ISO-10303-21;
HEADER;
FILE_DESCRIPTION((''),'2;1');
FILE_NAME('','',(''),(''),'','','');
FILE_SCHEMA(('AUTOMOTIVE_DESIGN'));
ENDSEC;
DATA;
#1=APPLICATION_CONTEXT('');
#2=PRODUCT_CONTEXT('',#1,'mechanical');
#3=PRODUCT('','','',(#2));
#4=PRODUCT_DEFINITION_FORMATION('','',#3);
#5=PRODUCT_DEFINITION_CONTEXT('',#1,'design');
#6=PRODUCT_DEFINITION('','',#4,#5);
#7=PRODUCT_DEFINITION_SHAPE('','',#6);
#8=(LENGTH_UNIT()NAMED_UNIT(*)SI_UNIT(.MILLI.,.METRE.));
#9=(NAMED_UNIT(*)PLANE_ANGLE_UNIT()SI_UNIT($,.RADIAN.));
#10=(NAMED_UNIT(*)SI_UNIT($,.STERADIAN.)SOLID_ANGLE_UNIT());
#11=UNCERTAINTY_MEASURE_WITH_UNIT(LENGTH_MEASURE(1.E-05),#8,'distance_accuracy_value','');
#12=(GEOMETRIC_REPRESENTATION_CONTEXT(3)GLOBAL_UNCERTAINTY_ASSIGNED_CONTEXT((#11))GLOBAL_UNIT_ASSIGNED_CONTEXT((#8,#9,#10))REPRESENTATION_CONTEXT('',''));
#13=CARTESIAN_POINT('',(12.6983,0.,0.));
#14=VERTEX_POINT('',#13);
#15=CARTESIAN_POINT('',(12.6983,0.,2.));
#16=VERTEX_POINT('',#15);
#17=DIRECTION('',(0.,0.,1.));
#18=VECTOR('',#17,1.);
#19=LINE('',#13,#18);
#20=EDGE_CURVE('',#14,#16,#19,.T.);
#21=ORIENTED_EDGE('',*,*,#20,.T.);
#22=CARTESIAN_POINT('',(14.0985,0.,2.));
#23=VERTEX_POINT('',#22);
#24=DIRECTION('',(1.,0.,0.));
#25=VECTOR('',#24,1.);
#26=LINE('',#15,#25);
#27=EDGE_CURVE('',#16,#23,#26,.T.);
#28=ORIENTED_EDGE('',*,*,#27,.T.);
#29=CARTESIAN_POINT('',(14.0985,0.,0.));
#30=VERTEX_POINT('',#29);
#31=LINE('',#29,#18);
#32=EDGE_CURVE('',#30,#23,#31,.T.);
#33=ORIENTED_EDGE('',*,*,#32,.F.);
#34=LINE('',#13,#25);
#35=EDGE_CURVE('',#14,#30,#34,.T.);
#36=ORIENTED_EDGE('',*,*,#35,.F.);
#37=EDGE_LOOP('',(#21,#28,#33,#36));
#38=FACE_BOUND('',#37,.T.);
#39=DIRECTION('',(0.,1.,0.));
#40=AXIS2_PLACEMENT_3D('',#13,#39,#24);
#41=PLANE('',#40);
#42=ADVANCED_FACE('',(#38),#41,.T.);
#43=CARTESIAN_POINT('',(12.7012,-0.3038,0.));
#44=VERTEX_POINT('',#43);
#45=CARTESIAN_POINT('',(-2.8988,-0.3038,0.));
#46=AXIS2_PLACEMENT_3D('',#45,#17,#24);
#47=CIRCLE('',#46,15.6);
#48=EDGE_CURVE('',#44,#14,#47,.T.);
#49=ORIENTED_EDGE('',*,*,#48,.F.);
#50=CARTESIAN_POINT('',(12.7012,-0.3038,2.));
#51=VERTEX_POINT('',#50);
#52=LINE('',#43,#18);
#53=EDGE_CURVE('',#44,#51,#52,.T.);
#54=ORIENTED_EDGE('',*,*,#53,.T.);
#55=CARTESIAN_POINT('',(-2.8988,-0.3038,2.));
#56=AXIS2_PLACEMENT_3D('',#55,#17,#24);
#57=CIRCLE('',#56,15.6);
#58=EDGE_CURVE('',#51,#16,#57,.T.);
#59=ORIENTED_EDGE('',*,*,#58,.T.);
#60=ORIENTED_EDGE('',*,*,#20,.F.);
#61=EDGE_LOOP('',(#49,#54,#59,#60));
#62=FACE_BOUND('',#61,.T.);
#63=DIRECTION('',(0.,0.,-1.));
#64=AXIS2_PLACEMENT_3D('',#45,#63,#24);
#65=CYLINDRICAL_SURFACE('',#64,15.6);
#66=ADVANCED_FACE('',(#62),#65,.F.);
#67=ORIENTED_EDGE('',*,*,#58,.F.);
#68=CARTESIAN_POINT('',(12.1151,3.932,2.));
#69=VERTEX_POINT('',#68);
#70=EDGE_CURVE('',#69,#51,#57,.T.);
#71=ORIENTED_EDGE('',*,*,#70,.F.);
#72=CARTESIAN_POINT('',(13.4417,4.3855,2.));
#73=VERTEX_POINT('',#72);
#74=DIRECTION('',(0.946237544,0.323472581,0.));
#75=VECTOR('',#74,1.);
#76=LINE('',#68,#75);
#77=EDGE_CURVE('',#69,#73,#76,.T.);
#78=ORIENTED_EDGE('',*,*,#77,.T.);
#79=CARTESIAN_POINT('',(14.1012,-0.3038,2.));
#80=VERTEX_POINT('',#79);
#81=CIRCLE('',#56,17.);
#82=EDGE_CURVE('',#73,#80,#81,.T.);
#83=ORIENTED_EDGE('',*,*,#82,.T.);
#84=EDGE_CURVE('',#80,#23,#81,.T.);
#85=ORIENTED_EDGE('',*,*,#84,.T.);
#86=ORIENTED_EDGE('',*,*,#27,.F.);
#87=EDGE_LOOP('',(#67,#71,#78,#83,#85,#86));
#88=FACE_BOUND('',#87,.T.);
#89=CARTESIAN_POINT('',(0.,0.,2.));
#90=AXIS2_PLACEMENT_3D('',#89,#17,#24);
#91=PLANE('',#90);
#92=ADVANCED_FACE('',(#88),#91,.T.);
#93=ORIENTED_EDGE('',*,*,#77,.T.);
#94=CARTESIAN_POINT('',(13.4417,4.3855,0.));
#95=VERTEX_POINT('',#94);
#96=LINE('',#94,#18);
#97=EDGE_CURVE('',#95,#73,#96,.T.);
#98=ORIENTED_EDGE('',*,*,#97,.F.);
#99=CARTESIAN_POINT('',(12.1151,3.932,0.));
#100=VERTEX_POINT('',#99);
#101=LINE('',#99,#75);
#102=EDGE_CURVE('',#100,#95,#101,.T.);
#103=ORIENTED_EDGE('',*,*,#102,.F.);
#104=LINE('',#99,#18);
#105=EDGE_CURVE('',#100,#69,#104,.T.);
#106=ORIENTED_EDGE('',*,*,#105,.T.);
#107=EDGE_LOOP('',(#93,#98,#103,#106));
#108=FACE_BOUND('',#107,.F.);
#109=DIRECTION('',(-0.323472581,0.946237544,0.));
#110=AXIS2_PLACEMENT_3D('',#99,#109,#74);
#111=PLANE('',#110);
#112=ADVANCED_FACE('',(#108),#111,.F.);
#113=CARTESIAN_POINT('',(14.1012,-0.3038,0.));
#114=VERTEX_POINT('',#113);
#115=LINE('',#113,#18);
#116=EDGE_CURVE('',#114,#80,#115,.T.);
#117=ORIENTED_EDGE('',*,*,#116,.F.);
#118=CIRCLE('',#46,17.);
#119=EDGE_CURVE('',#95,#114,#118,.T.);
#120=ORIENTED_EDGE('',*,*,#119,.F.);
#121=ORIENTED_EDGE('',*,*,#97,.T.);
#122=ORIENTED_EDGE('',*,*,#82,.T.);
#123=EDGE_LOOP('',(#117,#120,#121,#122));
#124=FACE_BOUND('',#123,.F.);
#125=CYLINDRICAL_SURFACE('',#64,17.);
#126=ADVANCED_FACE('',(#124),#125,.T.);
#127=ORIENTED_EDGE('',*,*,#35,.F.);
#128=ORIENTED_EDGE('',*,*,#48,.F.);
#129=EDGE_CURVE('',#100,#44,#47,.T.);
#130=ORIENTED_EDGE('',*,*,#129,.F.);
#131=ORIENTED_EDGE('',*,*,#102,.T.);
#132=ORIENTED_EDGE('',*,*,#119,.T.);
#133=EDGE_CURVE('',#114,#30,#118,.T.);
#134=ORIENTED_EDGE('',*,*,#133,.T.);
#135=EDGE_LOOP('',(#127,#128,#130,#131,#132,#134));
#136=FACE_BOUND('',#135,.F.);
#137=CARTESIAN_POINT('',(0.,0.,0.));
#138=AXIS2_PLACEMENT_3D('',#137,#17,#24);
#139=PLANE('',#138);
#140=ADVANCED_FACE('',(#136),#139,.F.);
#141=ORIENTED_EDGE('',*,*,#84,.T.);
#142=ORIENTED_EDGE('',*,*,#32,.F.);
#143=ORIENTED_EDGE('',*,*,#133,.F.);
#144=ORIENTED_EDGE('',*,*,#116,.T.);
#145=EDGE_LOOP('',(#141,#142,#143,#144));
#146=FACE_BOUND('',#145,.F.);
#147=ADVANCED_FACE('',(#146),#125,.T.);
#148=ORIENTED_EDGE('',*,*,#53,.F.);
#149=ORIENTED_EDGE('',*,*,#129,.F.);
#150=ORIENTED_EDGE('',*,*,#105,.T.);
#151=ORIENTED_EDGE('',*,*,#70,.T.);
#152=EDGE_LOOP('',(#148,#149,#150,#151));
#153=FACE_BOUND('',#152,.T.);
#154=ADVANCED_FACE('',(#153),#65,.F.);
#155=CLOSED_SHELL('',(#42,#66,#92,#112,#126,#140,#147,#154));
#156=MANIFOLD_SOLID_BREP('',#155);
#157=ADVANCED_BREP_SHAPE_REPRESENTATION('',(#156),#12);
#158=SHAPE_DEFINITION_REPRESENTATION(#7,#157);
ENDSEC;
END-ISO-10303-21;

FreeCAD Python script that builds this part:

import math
import FreeCAD as App
import Part
import Sketcher
from FreeCAD import Vector
Q = App.Units.Quantity

doc = App.newDocument("Part")
body = doc.addObject("PartDesign::Body", "Body")

# Sketch on XY plane
sketch1 = body.newObject("Sketcher::SketchObject", "Sketch")
sketch1.AttachmentSupport = (doc.getObject("XY_Plane"), [""])
sketch1.MapMode = "FlatFace"
sketch1.addGeometry([
    Part.ArcOfCircle(Part.Circle(Vector(-2.8988, -0.3038, 0), Vector(0, 0, 1), 15.6), math.radians(15.755098), math.radians(361.115865)),
    Part.LineSegment(Vector(12.1151, 3.932, 0), Vector(13.4417, 4.3855, 0)),
    Part.ArcOfCircle(Part.Circle(Vector(-2.8988, -0.3038, 0), Vector(0, 0, 1), 17), math.radians(16.012107), math.radians(361.023963)),
    Part.LineSegment(Vector(14.0985, 0, 0), Vector(12.6983, 0, 0)),
], False)
sketch1.addConstraint([
    Sketcher.Constraint("Coincident", 0, 1, 1, 1),
    Sketcher.Constraint("Coincident", 1, 2, 2, 1),
    Sketcher.Constraint("Coincident", 2, 2, 3, 1),
    Sketcher.Constraint("Coincident", 3, 2, 0, 2),
    Sketcher.Constraint("Horizontal", 3),
    Sketcher.Constraint("Coincident", 2, 3, 0, 3),
    Sketcher.Constraint("PointOnObject", 2, 2, -1),
    Sketcher.Constraint("Radius", 2, Q("17 mm")),
    Sketcher.Constraint("Radius", 0, Q("15.6 mm")),
    Sketcher.Constraint("Distance", 1, Q("1.402 mm")),
    Sketcher.Constraint("DistanceY", -1, 1, 0, 1, Q("3.932 mm")),
    Sketcher.Constraint("DistanceX", 0, 3, 0, 1, Q("15.014 mm")),
    Sketcher.Constraint("DistanceX", 0, 3, -1, 1, Q("2.8988 mm")),
])
pad1 = body.newObject("PartDesign::Pad", "Pad")
pad1.Profile = sketch1
pad1.Length = 2

doc.recompute()
